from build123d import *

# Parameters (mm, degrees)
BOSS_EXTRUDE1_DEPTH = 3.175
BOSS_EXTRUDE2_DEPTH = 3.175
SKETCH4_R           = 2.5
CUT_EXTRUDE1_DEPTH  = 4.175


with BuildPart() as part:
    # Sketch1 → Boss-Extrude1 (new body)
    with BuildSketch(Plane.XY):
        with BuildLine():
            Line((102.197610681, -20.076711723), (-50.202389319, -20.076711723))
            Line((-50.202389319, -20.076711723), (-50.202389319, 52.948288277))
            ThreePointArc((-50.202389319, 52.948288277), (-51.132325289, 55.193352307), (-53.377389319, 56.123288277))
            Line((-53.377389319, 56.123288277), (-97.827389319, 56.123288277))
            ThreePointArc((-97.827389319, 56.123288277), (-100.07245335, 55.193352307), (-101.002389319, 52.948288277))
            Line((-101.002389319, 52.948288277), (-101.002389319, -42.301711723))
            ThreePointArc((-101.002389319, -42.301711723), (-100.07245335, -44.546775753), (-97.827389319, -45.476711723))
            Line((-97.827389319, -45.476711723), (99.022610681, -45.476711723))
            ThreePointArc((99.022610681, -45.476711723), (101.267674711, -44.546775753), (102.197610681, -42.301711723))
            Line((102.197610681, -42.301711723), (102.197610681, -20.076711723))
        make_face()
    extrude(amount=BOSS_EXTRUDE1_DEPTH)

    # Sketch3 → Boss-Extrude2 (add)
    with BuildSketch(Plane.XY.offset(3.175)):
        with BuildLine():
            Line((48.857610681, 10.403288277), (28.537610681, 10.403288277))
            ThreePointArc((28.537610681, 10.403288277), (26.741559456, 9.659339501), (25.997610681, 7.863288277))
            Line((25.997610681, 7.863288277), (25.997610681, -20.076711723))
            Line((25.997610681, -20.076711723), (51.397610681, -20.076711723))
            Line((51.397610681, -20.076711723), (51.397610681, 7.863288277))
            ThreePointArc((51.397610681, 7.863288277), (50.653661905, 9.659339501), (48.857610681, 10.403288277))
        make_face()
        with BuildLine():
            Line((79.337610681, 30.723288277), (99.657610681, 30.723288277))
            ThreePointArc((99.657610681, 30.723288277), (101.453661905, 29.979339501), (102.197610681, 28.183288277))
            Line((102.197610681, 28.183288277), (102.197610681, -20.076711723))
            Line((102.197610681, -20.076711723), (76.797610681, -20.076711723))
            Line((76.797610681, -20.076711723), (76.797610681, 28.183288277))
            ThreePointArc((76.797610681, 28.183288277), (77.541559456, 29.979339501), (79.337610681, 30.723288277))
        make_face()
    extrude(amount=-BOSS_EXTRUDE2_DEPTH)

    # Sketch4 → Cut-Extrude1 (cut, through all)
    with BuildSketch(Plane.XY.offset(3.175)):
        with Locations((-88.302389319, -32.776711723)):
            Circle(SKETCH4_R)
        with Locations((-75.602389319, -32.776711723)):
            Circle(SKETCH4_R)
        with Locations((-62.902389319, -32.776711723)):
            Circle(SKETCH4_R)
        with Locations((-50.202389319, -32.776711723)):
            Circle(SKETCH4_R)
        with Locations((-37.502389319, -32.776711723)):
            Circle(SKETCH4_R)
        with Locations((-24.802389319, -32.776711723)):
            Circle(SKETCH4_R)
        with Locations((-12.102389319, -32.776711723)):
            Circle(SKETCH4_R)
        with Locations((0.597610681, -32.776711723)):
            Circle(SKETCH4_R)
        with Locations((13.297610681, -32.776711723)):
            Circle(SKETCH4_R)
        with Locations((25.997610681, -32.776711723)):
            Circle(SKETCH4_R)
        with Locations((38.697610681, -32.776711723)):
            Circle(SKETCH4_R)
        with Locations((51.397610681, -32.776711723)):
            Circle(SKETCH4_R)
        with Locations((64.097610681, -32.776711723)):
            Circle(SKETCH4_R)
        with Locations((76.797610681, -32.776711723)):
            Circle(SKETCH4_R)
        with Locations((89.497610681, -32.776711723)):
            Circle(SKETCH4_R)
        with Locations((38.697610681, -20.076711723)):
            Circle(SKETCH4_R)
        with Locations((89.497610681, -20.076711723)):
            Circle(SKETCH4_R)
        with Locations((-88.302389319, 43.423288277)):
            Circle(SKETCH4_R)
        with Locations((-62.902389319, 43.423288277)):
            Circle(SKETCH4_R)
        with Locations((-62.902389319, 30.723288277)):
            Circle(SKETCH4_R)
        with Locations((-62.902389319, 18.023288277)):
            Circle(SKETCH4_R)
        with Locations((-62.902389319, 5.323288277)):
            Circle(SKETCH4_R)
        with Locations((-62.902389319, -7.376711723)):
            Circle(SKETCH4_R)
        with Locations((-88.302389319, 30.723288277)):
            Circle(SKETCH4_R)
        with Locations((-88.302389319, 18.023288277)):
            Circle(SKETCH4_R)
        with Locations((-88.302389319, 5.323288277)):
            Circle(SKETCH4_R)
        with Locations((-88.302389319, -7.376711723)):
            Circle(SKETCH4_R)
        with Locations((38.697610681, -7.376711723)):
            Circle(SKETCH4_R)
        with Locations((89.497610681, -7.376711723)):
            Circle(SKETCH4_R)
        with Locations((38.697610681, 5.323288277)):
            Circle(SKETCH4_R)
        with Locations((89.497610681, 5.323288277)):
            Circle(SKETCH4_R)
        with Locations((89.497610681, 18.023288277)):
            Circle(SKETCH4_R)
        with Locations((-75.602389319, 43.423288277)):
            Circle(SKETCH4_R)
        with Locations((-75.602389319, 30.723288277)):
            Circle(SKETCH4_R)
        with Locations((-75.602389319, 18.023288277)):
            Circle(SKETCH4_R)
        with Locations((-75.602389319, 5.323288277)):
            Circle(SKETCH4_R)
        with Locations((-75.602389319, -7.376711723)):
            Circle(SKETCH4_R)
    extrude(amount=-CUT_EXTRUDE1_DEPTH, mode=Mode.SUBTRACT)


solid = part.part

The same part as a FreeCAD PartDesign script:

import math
import FreeCAD as App
import Part
import Sketcher
from FreeCAD import Vector
Q = App.Units.Quantity

doc = App.newDocument("Part")
body = doc.addObject("PartDesign::Body", "Body")

# Sketch on XY plane
sketch1 = body.newObject("Sketcher::SketchObject", "Sketch")
sketch1.AttachmentSupport = (doc.getObject("XY_Plane"), [""])
sketch1.MapMode = "FlatFace"
sketch1.addGeometry(Part.LineSegment(Vector(102.2, -20.1, 0), Vector(-50.2, -20.1, 0)), False)
sketch1.addGeometry(Part.LineSegment(Vector(-50.2, -20.1, 0), Vector(-50.2, 52.9, 0)), False)
sketch1.addGeometry(Part.ArcOfCircle(Part.Circle(Vector(-53.4, 52.9, 0), Vector(0, 0, 1), 3.2), math.radians(0), math.radians(90)), False)
sketch1.addGeometry(Part.LineSegment(Vector(-53.4, 56.1, 0), Vector(-97.8, 56.1, 0)), False)
sketch1.addGeometry(Part.ArcOfCircle(Part.Circle(Vector(-97.8, 52.9, 0), Vector(0, 0, 1), 3.2), math.radians(90), math.radians(180)), False)
sketch1.addGeometry(Part.LineSegment(Vector(-101, 52.9, 0), Vector(-101, -42.3, 0)), False)
sketch1.addGeometry(Part.ArcOfCircle(Part.Circle(Vector(-97.8, -42.3, 0), Vector(0, 0, 1), 3.2), math.radians(180), math.radians(270)), False)
sketch1.addGeometry(Part.LineSegment(Vector(-97.8, -45.5, 0), Vector(99, -45.5, 0)), False)
sketch1.addGeometry(Part.ArcOfCircle(Part.Circle(Vector(99, -42.3, 0), Vector(0, 0, 1), 3.2), math.radians(-90), math.radians(0)), False)
sketch1.addGeometry(Part.LineSegment(Vector(102.2, -42.3, 0), Vector(102.2, -20.1, 0)), False)
sketch1.addConstraint(Sketcher.Constraint("Coincident", 0, 2, 1, 1))
sketch1.addConstraint(Sketcher.Constraint("Tangent", 1, 2, 2, 1))
sketch1.addConstraint(Sketcher.Constraint("Tangent", 2, 2, 3, 1))
sketch1.addConstraint(Sketcher.Constraint("Tangent", 3, 2, 4, 1))
sketch1.addConstraint(Sketcher.Constraint("Tangent", 4, 2, 5, 1))
sketch1.addConstraint(Sketcher.Constraint("Tangent", 5, 2, 6, 1))
sketch1.addConstraint(Sketcher.Constraint("Tangent", 6, 2, 7, 1))
sketch1.addConstraint(Sketcher.Constraint("Tangent", 7, 2, 8, 1))
sketch1.addConstraint(Sketcher.Constraint("Tangent", 8, 2, 9, 1))
sketch1.addConstraint(Sketcher.Constraint("Coincident", 9, 2, 0, 1))
sketch1.addConstraint(Sketcher.Constraint("Horizontal", 0))
sketch1.addConstraint(Sketcher.Constraint("Vertical", 1))
sketch1.addConstraint(Sketcher.Constraint("Horizontal", 3))
sketch1.addConstraint(Sketcher.Constraint("Vertical", 5))
sketch1.addConstraint(Sketcher.Constraint("Horizontal", 7))
sketch1.addConstraint(Sketcher.Constraint("Vertical", 9))
sketch1.addConstraint(Sketcher.Constraint("Equal", 2, 4))
sketch1.addConstraint(Sketcher.Constraint("Equal", 4, 6))
sketch1.addConstraint(Sketcher.Constraint("Equal", 6, 8))
sketch1.addConstraint(Sketcher.Constraint("DistanceX", 0, 2, 0, 1, Q("6 in")))
sketch1.addConstraint(Sketcher.Constraint("Radius", 2, Q("0.125 in")))
sketch1.addConstraint(Sketcher.Constraint("DistanceY", 0, 2, 2, 2, Q("3 in")))
sketch1.addConstraint(Sketcher.Constraint("DistanceX", 4, 2, 1, 2, Q("2 in")))
sketch1.addConstraint(Sketcher.Constraint("DistanceY", 6, 2, 0, 2, Q("1 in")))
sketch1.addConstraint(Sketcher.Constraint("DistanceX", 2, 3, -1, 1, 53.377389))
sketch1.addConstraint(Sketcher.Constraint("DistanceY", -1, 1, 2, 3, 52.948288))
pad1 = body.newObject("PartDesign::Pad", "Pad")
pad1.Profile = sketch1
pad1.Length = Q("0.125 in")

# Sketch on XY plane
sketch2 = body.newObject("Sketcher::SketchObject", "Sketch001")
sketch2.AttachmentSupport = (doc.getObject("XY_Plane"), [""])
sketch2.MapMode = "FlatFace"
sketch2.AttachmentOffset = App.Placement(Vector(0, 0, 0.125 * 25.4), App.Rotation())
sketch2.addGeometry(Part.LineSegment(Vector(48.9, 10.4, 0), Vector(28.5, 10.4, 0)), False)
sketch2.addGeometry(Part.ArcOfCircle(Part.Circle(Vector(28.5, 7.9, 0), Vector(0, 0, 1), 2.5), math.radians(90), math.radians(180)), False)
sketch2.addGeometry(Part.LineSegment(Vector(26, 7.9, 0), Vector(26, -20.1, 0)), False)
sketch2.addGeometry(Part.LineSegment(Vector(26, -20.1, 0), Vector(51.4, -20.1, 0)), False)
sketch2.addGeometry(Part.LineSegment(Vector(51.4, -20.1, 0), Vector(51.4, 7.9, 0)), False)
sketch2.addGeometry(Part.ArcOfCircle(Part.Circle(Vector(48.9, 7.9, 0), Vector(0, 0, 1), 2.5), math.radians(0), math.radians(90)), False)
sketch2.addGeometry(Part.LineSegment(Vector(99.7, 30.7, 0), Vector(79.3, 30.7, 0)), False)
sketch2.addGeometry(Part.ArcOfCircle(Part.Circle(Vector(79.3, 28.2, 0), Vector(0, 0, 1), 2.5), math.radians(90), math.radians(180)), False)
sketch2.addGeometry(Part.LineSegment(Vector(76.8, 28.2, 0), Vector(76.8, -20.1, 0)), False)
sketch2.addGeometry(Part.LineSegment(Vector(76.8, -20.1, 0), Vector(102.2, -20.1, 0)), False)
sketch2.addGeometry(Part.LineSegment(Vector(102.2, -20.1, 0), Vector(102.2, 28.2, 0)), False)
sketch2.addGeometry(Part.ArcOfCircle(Part.Circle(Vector(99.7, 28.2, 0), Vector(0, 0, 1), 2.5), math.radians(0), math.radians(90)), False)
sketch2.addConstraint(Sketcher.Constraint("Tangent", 0, 2, 1, 1))
sketch2.addConstraint(Sketcher.Constraint("Tangent", 1, 2, 2, 1))
sketch2.addConstraint(Sketcher.Constraint("Coincident", 2, 2, 3, 1))
sketch2.addConstraint(Sketcher.Constraint("Coincident", 3, 2, 4, 1))
sketch2.addConstraint(Sketcher.Constraint("Tangent", 4, 2, 5, 1))
sketch2.addConstraint(Sketcher.Constraint("Tangent", 5, 2, 0, 1))
sketch2.addConstraint(Sketcher.Constraint("Tangent", 6, 2, 7, 1))
sketch2.addConstraint(Sketcher.Constraint("Tangent", 7, 2, 8, 1))
sketch2.addConstraint(Sketcher.Constraint("Coincident", 8, 2, 9, 1))
sketch2.addConstraint(Sketcher.Constraint("Coincident", 9, 2, 10, 1))
sketch2.addConstraint(Sketcher.Constraint("Tangent", 10, 2, 11, 1))
sketch2.addConstraint(Sketcher.Constraint("Tangent", 11, 2, 6, 1))
sketch2.addConstraint(Sketcher.Constraint("Horizontal", 0))
sketch2.addConstraint(Sketcher.Constraint("Vertical", 2))
sketch2.addConstraint(Sketcher.Constraint("Horizontal", 3))
sketch2.addConstraint(Sketcher.Constraint("Vertical", 4))
sketch2.addConstraint(Sketcher.Constraint("Horizontal", 6))
sketch2.addConstraint(Sketcher.Constraint("Vertical", 8))
sketch2.addConstraint(Sketcher.Constraint("Horizontal", 9))
sketch2.addConstraint(Sketcher.Constraint("Vertical", 10))
sketch2.addConstraint(Sketcher.Constraint("Equal", 1, 5))
sketch2.addConstraint(Sketcher.Constraint("Equal", 5, 7))
sketch2.addConstraint(Sketcher.Constraint("Equal", 7, 11))
sketch2.addConstraint(Sketcher.Constraint("Horizontal", 3, 2, 8, 2))
sketch2.addConstraint(Sketcher.Constraint("Equal", 0, 6))
sketch2.addConstraint(Sketcher.Constraint("Radius", 1, Q("0.1 in")))
sketch2.addConstraint(Sketcher.Constraint("DistanceX", 3, 1, 3, 2, Q("1 in")))
sketch2.addConstraint(Sketcher.Constraint("DistanceY", 2, 2, 2, 1, Q("1.1 in")))
sketch2.addConstraint(Sketcher.Constraint("DistanceY", 8, 2, 8, 1, Q("1.9 in")))
sketch2.addConstraint(Sketcher.Constraint("DistanceX", 1, 3, 7, 3, Q("2 in")))
sketch2.addConstraint(Sketcher.Constraint("DistanceX", -1, 1, 1, 3, 28.537611))
sketch2.addConstraint(Sketcher.Constraint("DistanceY", -1, 1, 1, 3, 7.863288))
pad2 = body.newObject("PartDesign::Pad", "Pad001")
pad2.Profile = sketch2
pad2.Length = Q("0.125 in")
pad2.Reversed = True

# Sketch on XY plane
sketch3 = body.newObject("Sketcher::SketchObject", "Sketch002")
sketch3.AttachmentSupport = (doc.getObject("XY_Plane"), [""])
sketch3.MapMode = "FlatFace"
sketch3.AttachmentOffset = App.Placement(Vector(0, 0, 0.125 * 25.4), App.Rotation())
sketch3.addGeometry(Part.Circle(Vector(-88.3, -32.8, 0), Vector(0, 0, 1), 2.5), False)
sketch3.addGeometry(Part.Circle(Vector(-75.6, -32.8, 0), Vector(0, 0, 1), 2.5), False)
sketch3.addGeometry(Part.Circle(Vector(-62.9, -32.8, 0), Vector(0, 0, 1), 2.5), False)
sketch3.addGeometry(Part.Circle(Vector(-50.2, -32.8, 0), Vector(0, 0, 1), 2.5), False)
sketch3.addGeometry(Part.Circle(Vector(-37.5, -32.8, 0), Vector(0, 0, 1), 2.5), False)
sketch3.addGeometry(Part.Circle(Vector(-24.8, -32.8, 0), Vector(0, 0, 1), 2.5), False)
sketch3.addGeometry(Part.Circle(Vector(-12.1, -32.8, 0), Vector(0, 0, 1), 2.5), False)
sketch3.addGeometry(Part.Circle(Vector(0.6, -32.8, 0), Vector(0, 0, 1), 2.5), False)
sketch3.addGeometry(Part.Circle(Vector(13.3, -32.8, 0), Vector(0, 0, 1), 2.5), False)
sketch3.addGeometry(Part.Circle(Vector(26, -32.8, 0), Vector(0, 0, 1), 2.5), False)
sketch3.addGeometry(Part.Circle(Vector(38.7, -32.8, 0), Vector(0, 0, 1), 2.5), False)
sketch3.addGeometry(Part.Circle(Vector(51.4, -32.8, 0), Vector(0, 0, 1), 2.5), False)
sketch3.addGeometry(Part.Circle(Vector(64.1, -32.8, 0), Vector(0, 0, 1), 2.5), False)
sketch3.addGeometry(Part.Circle(Vector(76.8, -32.8, 0), Vector(0, 0, 1), 2.5), False)
sketch3.addGeometry(Part.Circle(Vector(89.5, -32.8, 0), Vector(0, 0, 1), 2.5), False)
sketch3.addGeometry(Part.Circle(Vector(38.7, -20.1, 0), Vector(0, 0, 1), 2.5), False)
sketch3.addGeometry(Part.Circle(Vector(89.5, -20.1, 0), Vector(0, 0, 1), 2.5), False)
sketch3.addGeometry(Part.Circle(Vector(-88.3, 43.4, 0), Vector(0, 0, 1), 2.5), False)
sketch3.addGeometry(Part.Circle(Vector(-62.9, 43.4, 0), Vector(0, 0, 1), 2.5), False)
sketch3.addGeometry(Part.Circle(Vector(-62.9, 30.7, 0), Vector(0, 0, 1), 2.5), False)
sketch3.addGeometry(Part.Circle(Vector(-62.9, 18, 0), Vector(0, 0, 1), 2.5), False)
sketch3.addGeometry(Part.Circle(Vector(-62.9, 5.3, 0), Vector(0, 0, 1), 2.5), False)
sketch3.addGeometry(Part.Circle(Vector(-62.9, -7.4, 0), Vector(0, 0, 1), 2.5), False)
sketch3.addGeometry(Part.Circle(Vector(-88.3, 30.7, 0), Vector(0, 0, 1), 2.5), False)
sketch3.addGeometry(Part.Circle(Vector(-88.3, 18, 0), Vector(0, 0, 1), 2.5), False)
sketch3.addGeometry(Part.Circle(Vector(-88.3, 5.3, 0), Vector(0, 0, 1), 2.5), False)
sketch3.addGeometry(Part.Circle(Vector(-88.3, -7.4, 0), Vector(0, 0, 1), 2.5), False)
sketch3.addGeometry(Part.Circle(Vector(38.7, -7.4, 0), Vector(0, 0, 1), 2.5), False)
sketch3.addGeometry(Part.Circle(Vector(89.5, -7.4, 0), Vector(0, 0, 1), 2.5), False)
sketch3.addGeometry(Part.Circle(Vector(38.7, 5.3, 0), Vector(0, 0, 1), 2.5), False)
sketch3.addGeometry(Part.Circle(Vector(89.5, 5.3, 0), Vector(0, 0, 1), 2.5), False)
sketch3.addGeometry(Part.Circle(Vector(89.5, 18, 0), Vector(0, 0, 1), 2.5), False)
sketch3.addGeometry(Part.Circle(Vector(-75.6, 43.4, 0), Vector(0, 0, 1), 2.5), False)
sketch3.addGeometry(Part.Circle(Vector(-75.6, 30.7, 0), Vector(0, 0, 1), 2.5), False)
sketch3.addGeometry(Part.Circle(Vector(-75.6, 18, 0), Vector(0, 0, 1), 2.5), False)
sketch3.addGeometry(Part.Circle(Vector(-75.6, 5.3, 0), Vector(0, 0, 1), 2.5), False)
sketch3.addGeometry(Part.Circle(Vector(-75.6, -7.4, 0), Vector(0, 0, 1), 2.5), False)
sketch3.addConstraint(Sketcher.Constraint("Equal", 0, 1))
sketch3.addConstraint(Sketcher.Constraint("Equal", 1, 2))
sketch3.addConstraint(Sketcher.Constraint("Equal", 2, 3))
sketch3.addConstraint(Sketcher.Constraint("Equal", 3, 4))
sketch3.addConstraint(Sketcher.Constraint("Equal", 4, 5))
sketch3.addConstraint(Sketcher.Constraint("Equal", 5, 6))
sketch3.addConstraint(Sketcher.Constraint("Equal", 6, 7))
sketch3.addConstraint(Sketcher.Constraint("Equal", 7, 8))
sketch3.addConstraint(Sketcher.Constraint("Equal", 8, 9))
sketch3.addConstraint(Sketcher.Constraint("Equal", 9, 10))
sketch3.addConstraint(Sketcher.Constraint("Equal", 10, 11))
sketch3.addConstraint(Sketcher.Constraint("Equal", 11, 12))
sketch3.addConstraint(Sketcher.Constraint("Equal", 12, 13))
sketch3.addConstraint(Sketcher.Constraint("Equal", 13, 14))
sketch3.addConstraint(Sketcher.Constraint("Equal", 14, 15))
sketch3.addConstraint(Sketcher.Constraint("Equal", 15, 16))
sketch3.addConstraint(Sketcher.Constraint("Equal", 16, 17))
sketch3.addConstraint(Sketcher.Constraint("Equal", 17, 18))
sketch3.addConstraint(Sketcher.Constraint("Equal", 18, 19))
sketch3.addConstraint(Sketcher.Constraint("Equal", 19, 20))
sketch3.addConstraint(Sketcher.Constraint("Equal", 20, 21))
sketch3.addConstraint(Sketcher.Constraint("Equal", 21, 22))
sketch3.addConstraint(Sketcher.Constraint("Equal", 22, 23))
sketch3.addConstraint(Sketcher.Constraint("Equal", 23, 24))
sketch3.addConstraint(Sketcher.Constraint("Equal", 24, 25))
sketch3.addConstraint(Sketcher.Constraint("Equal", 25, 26))
sketch3.addConstraint(Sketcher.Constraint("Equal", 26, 27))
sketch3.addConstraint(Sketcher.Constraint("Equal", 27, 28))
sketch3.addConstraint(Sketcher.Constraint("Equal", 28, 29))
sketch3.addConstraint(Sketcher.Constraint("Equal", 29, 30))
sketch3.addConstraint(Sketcher.Constraint("Equal", 30, 31))
sketch3.addConstraint(Sketcher.Constraint("Equal", 31, 32))
sketch3.addConstraint(Sketcher.Constraint("Equal", 32, 33))
sketch3.addConstraint(Sketcher.Constraint("Equal", 33, 34))
sketch3.addConstraint(Sketcher.Constraint("Equal", 34, 35))
sketch3.addConstraint(Sketcher.Constraint("Equal", 35, 36))
sketch3.addConstraint(Sketcher.Constraint("Horizontal", 0, 3, 1, 3))
sketch3.addConstraint(Sketcher.Constraint("Horizontal", 1, 3, 2, 3))
sketch3.addConstraint(Sketcher.Constraint("Horizontal", 2, 3, 3, 3))
sketch3.addConstraint(Sketcher.Constraint("Horizontal", 3, 3, 4, 3))
sketch3.addConstraint(Sketcher.Constraint("Horizontal", 4, 3, 5, 3))
sketch3.addConstraint(Sketcher.Constraint("Horizontal", 5, 3, 6, 3))
sketch3.addConstraint(Sketcher.Constraint("Horizontal", 6, 3, 7, 3))
sketch3.addConstraint(Sketcher.Constraint("Horizontal", 7, 3, 8, 3))
sketch3.addConstraint(Sketcher.Constraint("Horizontal", 8, 3, 9, 3))
sketch3.addConstraint(Sketcher.Constraint("Horizontal", 9, 3, 10, 3))
sketch3.addConstraint(Sketcher.Constraint("Horizontal", 10, 3, 11, 3))
sketch3.addConstraint(Sketcher.Constraint("Horizontal", 11, 3, 12, 3))
sketch3.addConstraint(Sketcher.Constraint("Horizontal", 12, 3, 13, 3))
sketch3.addConstraint(Sketcher.Constraint("Horizontal", 13, 3, 14, 3))
sketch3.addConstraint(Sketcher.Constraint("Horizontal", 15, 3, 16, 3))
sketch3.addConstraint(Sketcher.Constraint("Horizontal", 17, 3, 18, 3))
sketch3.addConstraint(Sketcher.Constraint("Horizontal", 19, 3, 23, 3))
sketch3.addConstraint(Sketcher.Constraint("Horizontal", 20, 3, 24, 3))
sketch3.addConstraint(Sketcher.Constraint("Horizontal", 21, 3, 25, 3))
sketch3.addConstraint(Sketcher.Constraint("Horizontal", 22, 3, 26, 3))
sketch3.addConstraint(Sketcher.Constraint("Horizontal", 26, 3, 27, 3))
sketch3.addConstraint(Sketcher.Constraint("Horizontal", 27, 3, 28, 3))
sketch3.addConstraint(Sketcher.Constraint("Horizontal", 25, 3, 29, 3))
sketch3.addConstraint(Sketcher.Constraint("Horizontal", 29, 3, 30, 3))
sketch3.addConstraint(Sketcher.Constraint("Horizontal", 24, 3, 31, 3))
sketch3.addConstraint(Sketcher.Constraint("Horizontal", 18, 3, 32, 3))
sketch3.addConstraint(Sketcher.Constraint("Horizontal", 23, 3, 33, 3))
sketch3.addConstraint(Sketcher.Constraint("Horizontal", 31, 3, 34, 3))
sketch3.addConstraint(Sketcher.Constraint("Horizontal", 30, 3, 35, 3))
sketch3.addConstraint(Sketcher.Constraint("Horizontal", 28, 3, 36, 3))
sketch3.addConstraint(Sketcher.Constraint("Vertical", 10, 3, 15, 3))
sketch3.addConstraint(Sketcher.Constraint("Vertical", 14, 3, 16, 3))
sketch3.addConstraint(Sketcher.Constraint("Vertical", 0, 3, 17, 3))
sketch3.addConstraint(Sketcher.Constraint("Vertical", 2, 3, 18, 3))
sketch3.addConstraint(Sketcher.Constraint("Vertical", 18, 3, 19, 3))
sketch3.addConstraint(Sketcher.Constraint("Vertical", 19, 3, 20, 3))
sketch3.addConstraint(Sketcher.Constraint("Vertical", 20, 3, 21, 3))
sketch3.addConstraint(Sketcher.Constraint("Vertical", 21, 3, 22, 3))
sketch3.addConstraint(Sketcher.Constraint("Vertical", 17, 3, 23, 3))
sketch3.addConstraint(Sketcher.Constraint("Vertical", 23, 3, 24, 3))
sketch3.addConstraint(Sketcher.Constraint("Vertical", 24, 3, 25, 3))
sketch3.addConstraint(Sketcher.Constraint("Vertical", 25, 3, 26, 3))
sketch3.addConstraint(Sketcher.Constraint("Vertical", 15, 3, 27, 3))
sketch3.addConstraint(Sketcher.Constraint("Vertical", 16, 3, 28, 3))
sketch3.addConstraint(Sketcher.Constraint("Vertical", 27, 3, 29, 3))
sketch3.addConstraint(Sketcher.Constraint("Vertical", 28, 3, 30, 3))
sketch3.addConstraint(Sketcher.Constraint("Vertical", 30, 3, 31, 3))
sketch3.addConstraint(Sketcher.Constraint("Vertical", 1, 3, 32, 3))
sketch3.addConstraint(Sketcher.Constraint("Vertical", 32, 3, 33, 3))
sketch3.addConstraint(Sketcher.Constraint("Vertical", 33, 3, 34, 3))
sketch3.addConstraint(Sketcher.Constraint("Vertical", 34, 3, 35, 3))
sketch3.addConstraint(Sketcher.Constraint("Vertical", 35, 3, 36, 3))
sketch3.addConstraint(Sketcher.Constraint("DistanceX", 0, 3, 2, 3, Q("1 in")))
sketch3.addConstraint(Sketcher.Constraint("DistanceX", 1, 3, 3, 3, Q("1 in")))
sketch3.addConstraint(Sketcher.Constraint("DistanceX", 2, 3, 4, 3, Q("1 in")))
sketch3.addConstraint(Sketcher.Constraint("DistanceX", 3, 3, 5, 3, Q("1 in")))
sketch3.addConstraint(Sketcher.Constraint("DistanceX", 4, 3, 6, 3, Q("1 in")))
sketch3.addConstraint(Sketcher.Constraint("DistanceX", 5, 3, 7, 3, Q("1 in")))
sketch3.addConstraint(Sketcher.Constraint("DistanceX", 6, 3, 8, 3, Q("1 in")))
sketch3.addConstraint(Sketcher.Constraint("DistanceX", 7, 3, 9, 3, Q("1 in")))
sketch3.addConstraint(Sketcher.Constraint("DistanceX", 8, 3, 10, 3, Q("1 in")))
sketch3.addConstraint(Sketcher.Constraint("DistanceX", 9, 3, 11, 3, Q("1 in")))
sketch3.addConstraint(Sketcher.Constraint("DistanceX", 10, 3, 12, 3, Q("1 in")))
sketch3.addConstraint(Sketcher.Constraint("DistanceX", 11, 3, 13, 3, Q("1 in")))
sketch3.addConstraint(Sketcher.Constraint("DistanceX", 12, 3, 14, 3, Q("1 in")))
sketch3.addConstraint(Sketcher.Constraint("DistanceY", 0, 3, 17, 3, Q("3 in")))
sketch3.addConstraint(Sketcher.Constraint("DistanceY", 20, 3, 18, 3, Q("1 in")))
sketch3.addConstraint(Sketcher.Constraint("DistanceY", 21, 3, 19, 3, Q("1 in")))
sketch3.addConstraint(Sketcher.Constraint("DistanceY", 2, 3, 22, 3, Q("1 in")))
sketch3.addConstraint(Sketcher.Constraint("DistanceY", 15, 3, 29, 3, Q("1 in")))
sketch3.addConstraint(Sketcher.Constraint("DistanceX", 0, 3, 1, 3, Q("0.5 in")))
sketch3.addConstraint(Sketcher.Constraint("DistanceY", 10, 3, 15, 3, Q("0.5 in")))
sketch3.addConstraint(Sketcher.Constraint("Diameter", 0, 5.0))
sketch3.addConstraint(Sketcher.Constraint("DistanceX", 0, 3, -1, 1, 88.302389))
sketch3.addConstraint(Sketcher.Constraint("DistanceY", 0, 3, -1, 1, 32.776712))
pocket1 = body.newObject("PartDesign::Pocket", "Pocket")
pocket1.Profile = sketch3
pocket1.Type = "ThroughAll"

doc.recompute()
